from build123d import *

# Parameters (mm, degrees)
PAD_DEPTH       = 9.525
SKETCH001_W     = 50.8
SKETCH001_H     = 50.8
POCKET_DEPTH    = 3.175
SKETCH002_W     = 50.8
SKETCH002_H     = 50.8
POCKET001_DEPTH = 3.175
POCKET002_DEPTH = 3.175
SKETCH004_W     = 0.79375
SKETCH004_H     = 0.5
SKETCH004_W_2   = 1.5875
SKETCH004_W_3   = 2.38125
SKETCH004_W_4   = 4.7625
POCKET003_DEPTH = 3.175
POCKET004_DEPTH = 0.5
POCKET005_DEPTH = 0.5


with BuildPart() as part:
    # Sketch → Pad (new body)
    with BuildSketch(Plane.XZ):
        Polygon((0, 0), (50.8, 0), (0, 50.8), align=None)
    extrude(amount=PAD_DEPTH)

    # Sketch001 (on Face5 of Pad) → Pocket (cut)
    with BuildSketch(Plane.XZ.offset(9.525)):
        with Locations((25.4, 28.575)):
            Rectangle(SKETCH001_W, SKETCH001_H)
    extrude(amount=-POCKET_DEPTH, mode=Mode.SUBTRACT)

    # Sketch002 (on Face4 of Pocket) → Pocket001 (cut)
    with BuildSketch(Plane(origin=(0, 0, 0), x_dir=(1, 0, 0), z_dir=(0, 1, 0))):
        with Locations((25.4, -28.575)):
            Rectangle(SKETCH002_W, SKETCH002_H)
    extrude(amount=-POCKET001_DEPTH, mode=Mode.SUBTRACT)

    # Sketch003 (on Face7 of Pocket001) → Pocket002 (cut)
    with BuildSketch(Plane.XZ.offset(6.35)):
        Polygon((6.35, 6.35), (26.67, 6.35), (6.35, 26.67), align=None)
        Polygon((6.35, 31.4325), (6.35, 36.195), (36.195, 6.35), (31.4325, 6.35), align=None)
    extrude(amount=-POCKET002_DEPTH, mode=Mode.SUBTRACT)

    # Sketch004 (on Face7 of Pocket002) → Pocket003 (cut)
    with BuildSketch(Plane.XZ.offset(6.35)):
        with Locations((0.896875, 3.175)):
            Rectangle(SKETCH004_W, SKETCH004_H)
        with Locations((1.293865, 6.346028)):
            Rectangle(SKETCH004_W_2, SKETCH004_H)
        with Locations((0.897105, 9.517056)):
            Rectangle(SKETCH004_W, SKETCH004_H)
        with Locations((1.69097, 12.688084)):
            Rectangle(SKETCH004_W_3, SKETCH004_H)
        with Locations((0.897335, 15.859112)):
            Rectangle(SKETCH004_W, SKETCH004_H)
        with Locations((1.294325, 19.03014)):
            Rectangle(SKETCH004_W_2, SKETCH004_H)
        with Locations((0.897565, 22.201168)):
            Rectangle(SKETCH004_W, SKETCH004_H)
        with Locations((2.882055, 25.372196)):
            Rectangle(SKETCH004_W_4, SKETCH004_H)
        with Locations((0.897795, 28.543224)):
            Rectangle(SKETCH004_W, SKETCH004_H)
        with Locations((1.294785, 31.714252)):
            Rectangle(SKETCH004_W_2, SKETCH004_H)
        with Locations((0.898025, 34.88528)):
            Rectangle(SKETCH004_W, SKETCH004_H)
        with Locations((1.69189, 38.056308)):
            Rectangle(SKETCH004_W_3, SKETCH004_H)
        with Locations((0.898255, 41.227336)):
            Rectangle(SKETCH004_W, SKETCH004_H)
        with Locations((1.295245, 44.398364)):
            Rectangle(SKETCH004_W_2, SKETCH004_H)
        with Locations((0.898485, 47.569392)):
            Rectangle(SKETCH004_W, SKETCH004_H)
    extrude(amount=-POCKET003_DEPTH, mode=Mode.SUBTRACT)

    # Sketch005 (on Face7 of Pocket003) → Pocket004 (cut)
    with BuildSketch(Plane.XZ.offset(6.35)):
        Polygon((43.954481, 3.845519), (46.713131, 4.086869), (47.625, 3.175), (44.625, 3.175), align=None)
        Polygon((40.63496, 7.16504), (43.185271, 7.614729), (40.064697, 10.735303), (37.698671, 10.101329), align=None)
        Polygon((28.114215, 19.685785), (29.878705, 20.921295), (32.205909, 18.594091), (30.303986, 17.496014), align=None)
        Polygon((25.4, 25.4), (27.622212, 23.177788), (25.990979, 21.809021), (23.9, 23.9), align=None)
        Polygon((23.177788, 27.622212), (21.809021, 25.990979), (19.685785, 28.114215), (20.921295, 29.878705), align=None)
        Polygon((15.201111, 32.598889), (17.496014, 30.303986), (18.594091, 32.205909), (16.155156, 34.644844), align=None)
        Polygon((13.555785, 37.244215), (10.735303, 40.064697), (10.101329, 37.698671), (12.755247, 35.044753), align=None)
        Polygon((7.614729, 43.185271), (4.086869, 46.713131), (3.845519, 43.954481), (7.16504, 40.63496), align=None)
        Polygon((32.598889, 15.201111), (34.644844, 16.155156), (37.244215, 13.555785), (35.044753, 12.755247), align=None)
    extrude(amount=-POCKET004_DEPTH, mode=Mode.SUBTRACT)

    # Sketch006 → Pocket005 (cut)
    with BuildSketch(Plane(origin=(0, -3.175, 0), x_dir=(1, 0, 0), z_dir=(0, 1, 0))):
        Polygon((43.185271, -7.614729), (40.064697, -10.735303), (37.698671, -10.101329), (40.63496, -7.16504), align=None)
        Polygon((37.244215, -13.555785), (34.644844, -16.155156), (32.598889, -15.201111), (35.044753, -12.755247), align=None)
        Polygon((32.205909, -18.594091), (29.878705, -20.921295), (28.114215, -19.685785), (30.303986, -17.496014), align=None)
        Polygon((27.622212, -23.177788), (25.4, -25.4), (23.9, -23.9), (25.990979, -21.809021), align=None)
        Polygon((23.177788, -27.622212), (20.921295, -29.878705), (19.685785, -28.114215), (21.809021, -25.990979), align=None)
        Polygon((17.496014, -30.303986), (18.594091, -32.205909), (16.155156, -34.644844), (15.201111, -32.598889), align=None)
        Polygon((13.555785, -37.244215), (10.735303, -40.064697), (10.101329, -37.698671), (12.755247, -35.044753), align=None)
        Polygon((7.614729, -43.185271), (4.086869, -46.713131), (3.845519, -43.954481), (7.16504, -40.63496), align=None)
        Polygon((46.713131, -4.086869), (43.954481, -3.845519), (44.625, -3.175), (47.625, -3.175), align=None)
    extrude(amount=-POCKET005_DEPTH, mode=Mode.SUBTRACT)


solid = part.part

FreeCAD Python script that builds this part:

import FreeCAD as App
import Part
import Sketcher

V = App.Vector
Q = App.Units.Quantity


def add_polygon(sketch, points):
    """Adds a closed chain of lines whose ends are joined by coincident constraints."""
    first, n = sketch.GeometryCount, len(points)
    for a, b in zip(points, points[1:] + points[:1]):
        sketch.addGeometry(Part.LineSegment(App.Vector(*a, 0), App.Vector(*b, 0)), False)
    for i in range(n):
        sketch.addConstraint(Sketcher.Constraint("Coincident", first + i, 2, first + (i + 1) % n, 1))

doc = App.newDocument("Part")
params = doc.addObject("Spreadsheet::Sheet", "Params")
for row, (alias, value) in enumerate([
    ("sketch1_width", "2 in"),
    ("pad1_length", "0.375 in"),
    ("sketch2_width", "2 in"),
    ("pocket1_length", "0.125 in"),
    ("sketch3_width", "2 in"),
    ("pocket2_length", "0.125 in"),
    ("sketch4_width", "0.8 in"),
    ("sketch4_width2", "0.1875 in"),
    ("pocket3_length", "0.125 in"),
    ("sketch5_width", "0.03125 in"),
    ("sketch5_width2", "0.0625 in"),
    ("sketch5_width3", "0.09375 in"),
    ("sketch5_width4", "0.1875 in"),
    ("pocket4_length", "0.125 in"),
    ("pocket5_length", "0.5 mm"),
    ("pocket6_length", "0.5 mm"),
], start=1):
    params.set(f"A{row}", alias)
    params.set(f"B{row}", "=" + value)
    params.setAlias(f"B{row}", alias)

body = doc.addObject("PartDesign::Body", "Body")

# Sketch on XZ plane
sketch1 = body.newObject("Sketcher::SketchObject", "Sketch")
sketch1.AttachmentSupport = (doc.getObject("XZ_Plane"), [""])
sketch1.MapMode = "FlatFace"
add_polygon(sketch1, [(0, 0), (51, 0), (0, 51)])  # lines 0-2
sketch1.addConstraint(Sketcher.Constraint("Horizontal", 0))
sketch1.addConstraint(Sketcher.Constraint("Vertical", 2))
sketch1.addConstraint(Sketcher.Constraint("Coincident", 2, 2, -1, 1))
sketch1.addConstraint(Sketcher.Constraint("Equal", 0, 2))
sketch1.addConstraint(Sketcher.Constraint("DistanceX", 0, 1, 0, 2, Q("2 in")))
sketch1.setExpression("Constraints[7]", "Params.sketch1_width")
pad1 = body.newObject("PartDesign::Pad", "Pad")
pad1.Profile = sketch1
pad1.setExpression("Length", "Params.pad1_length")

# Sketch on XZ plane
sketch2 = body.newObject("Sketcher::SketchObject", "Sketch001")
sketch2.AttachmentSupport = (doc.getObject("XZ_Plane"), [""])
sketch2.MapMode = "FlatFace"
sketch2.AttachmentOffset = App.Placement(V(0, 0, 0.375 * 25.4), App.Rotation())
add_polygon(sketch2, [(0, 54), (0, 3), (51, 3), (51, 54)])  # lines 0-3
sketch2.addConstraint(Sketcher.Constraint("Vertical", 0))
sketch2.addConstraint(Sketcher.Constraint("Horizontal", 1))
sketch2.addConstraint(Sketcher.Constraint("Vertical", 2))
sketch2.addConstraint(Sketcher.Constraint("Horizontal", 3))
sketch2.addConstraint(Sketcher.Constraint("PointOnObject", 0, 2, -2))
sketch2.addConstraint(Sketcher.Constraint("Equal", 3, 0))
sketch2.addConstraint(Sketcher.Constraint("DistanceX", 1, 1, 1, 2, Q("2 in")))
sketch2.addConstraint(Sketcher.Constraint("DistanceY", -1, 1, 0, 2, Q("0.125 in")))
sketch2.setExpression("Constraints[10]", "Params.sketch2_width")
pocket1 = body.newObject("PartDesign::Pocket", "Pocket")
pocket1.Profile = sketch2
pocket1.setExpression("Length", "Params.pocket1_length")

# Sketch on XZ plane
sketch3 = body.newObject("Sketcher::SketchObject", "Sketch002")
sketch3.AttachmentSupport = (doc.getObject("XZ_Plane"), [""])
sketch3.MapMode = "FlatFace"
add_polygon(sketch3, [(0, 3), (0, 54), (51, 54), (51, 3)])  # lines 0-3
sketch3.addConstraint(Sketcher.Constraint("Vertical", 0))
sketch3.addConstraint(Sketcher.Constraint("Horizontal", 1))
sketch3.addConstraint(Sketcher.Constraint("Vertical", 2))
sketch3.addConstraint(Sketcher.Constraint("Horizontal", 3))
sketch3.addConstraint(Sketcher.Constraint("PointOnObject", 0, 2, -2))
sketch3.addConstraint(Sketcher.Constraint("Equal", 3, 0))
sketch3.addConstraint(Sketcher.Constraint("DistanceX", 1, 1, 1, 2, Q("2 in")))
sketch3.addConstraint(Sketcher.Constraint("DistanceY", -1, 1, 0, 2, Q("2.125 in")))
sketch3.setExpression("Constraints[10]", "Params.sketch3_width")
pocket2 = body.newObject("PartDesign::Pocket", "Pocket001")
pocket2.Profile = sketch3
pocket2.setExpression("Length", "Params.pocket2_length")
pocket2.Reversed = True

# Sketch on XZ plane
sketch4 = body.newObject("Sketcher::SketchObject", "Sketch003")
sketch4.AttachmentSupport = (doc.getObject("XZ_Plane"), [""])
sketch4.MapMode = "FlatFace"
sketch4.AttachmentOffset = App.Placement(V(0, 0, 0.25 * 25.4), App.Rotation())
add_polygon(sketch4, [(6.3, 6.3), (26.7, 6.3), (6.3, 26.7)])  # lines 0-2
add_polygon(sketch4, [(6.3, 36.2), (6.3, 31.4), (31.4, 6.3), (36.2, 6.3)])  # lines 3-6
sketch4.addConstraint(Sketcher.Constraint("Horizontal", 0))
sketch4.addConstraint(Sketcher.Constraint("Vertical", 2))
sketch4.addConstraint(Sketcher.Constraint("Vertical", 3))
sketch4.addConstraint(Sketcher.Constraint("Horizontal", 5))
sketch4.addConstraint(Sketcher.Constraint("Parallel", 1, 4))
sketch4.addConstraint(Sketcher.Constraint("Parallel", 4, 6))
sketch4.addConstraint(Sketcher.Constraint("Horizontal", 2, 2, 4, 2))
sketch4.addConstraint(Sketcher.Constraint("Vertical", 2, 2, 3, 2))
sketch4.addConstraint(Sketcher.Constraint("Equal", 0, 2))
sketch4.addConstraint(Sketcher.Constraint("DistanceX", 0, 1, 0, 2, Q("0.8 in")))
sketch4.addConstraint(Sketcher.Constraint("DistanceX", 5, 1, 5, 2, Q("0.1875 in")))
sketch4.addConstraint(Sketcher.Constraint("DistanceX", -1, 1, 0, 2, Q("1.05 in")))
sketch4.addConstraint(Sketcher.Constraint("DistanceY", -1, 1, 0, 2, Q("0.25 in")))
sketch4.addConstraint(Sketcher.Constraint("DistanceX", -1, 1, 5, 2, Q("1.425 in")))
sketch4.setExpression("Constraints[16]", "Params.sketch4_width")
sketch4.setExpression("Constraints[17]", "Params.sketch4_width2")
pocket3 = body.newObject("PartDesign::Pocket", "Pocket002")
pocket3.Profile = sketch4
pocket3.setExpression("Length", "Params.pocket3_length")

# Sketch on XZ plane
sketch5 = body.newObject("Sketcher::SketchObject", "Sketch004")
sketch5.AttachmentSupport = (doc.getObject("XZ_Plane"), [""])
sketch5.MapMode = "FlatFace"
sketch5.AttachmentOffset = App.Placement(V(0, 0, 0.25 * 25.4), App.Rotation())
add_polygon(sketch5, [(0.5, 3.4), (0.5, 2.9), (1.3, 2.9), (1.3, 3.4)])  # lines 0-3
add_polygon(sketch5, [(0.5, 6.6), (0.5, 6.1), (2.1, 6.1), (2.1, 6.6)])  # lines 4-7
add_polygon(sketch5, [(0.5, 9.8), (0.5, 9.3), (1.3, 9.3), (1.3, 9.8)])  # lines 8-11
add_polygon(sketch5, [(0.5, 12.9), (0.5, 12.4), (2.9, 12.4), (2.9, 12.9)])  # lines 12-15
add_polygon(sketch5, [(0.5, 16.1), (0.5, 15.6), (1.3, 15.6), (1.3, 16.1)])  # lines 16-19
add_polygon(sketch5, [(0.5, 19.3), (0.5, 18.8), (2.1, 18.8), (2.1, 19.3)])  # lines 20-23
add_polygon(sketch5, [(0.5, 22.5), (0.5, 22), (1.3, 22), (1.3, 22.5)])  # lines 24-27
add_polygon(sketch5, [(0.5, 25.6), (0.5, 25.1), (5.3, 25.1), (5.3, 25.6)])  # lines 28-31
add_polygon(sketch5, [(0.5, 28.8), (0.5, 28.3), (1.3, 28.3), (1.3, 28.8)])  # lines 32-35
add_polygon(sketch5, [(0.5, 32), (0.5, 31.5), (2.1, 31.5), (2.1, 32)])  # lines 36-39
add_polygon(sketch5, [(0.5, 35.1), (0.5, 34.6), (1.3, 34.6), (1.3, 35.1)])  # lines 40-43
add_polygon(sketch5, [(0.5, 38.3), (0.5, 37.8), (2.9, 37.8), (2.9, 38.3)])  # lines 44-47
add_polygon(sketch5, [(0.5, 41.5), (0.5, 41), (1.3, 41), (1.3, 41.5)])  # lines 48-51
add_polygon(sketch5, [(0.5, 44.6), (0.5, 44.1), (2.1, 44.1), (2.1, 44.6)])  # lines 52-55
add_polygon(sketch5, [(0.5, 47.8), (0.5, 47.3), (1.3, 47.3), (1.3, 47.8)])  # lines 56-59
sketch5.addConstraint(Sketcher.Constraint("Vertical", 0))
sketch5.addConstraint(Sketcher.Constraint("Horizontal", 1))
sketch5.addConstraint(Sketcher.Constraint("Vertical", 2))
sketch5.addConstraint(Sketcher.Constraint("Horizontal", 3))
sketch5.addConstraint(Sketcher.Constraint("Vertical", 4))
sketch5.addConstraint(Sketcher.Constraint("Horizontal", 5))
sketch5.addConstraint(Sketcher.Constraint("Vertical", 6))
sketch5.addConstraint(Sketcher.Constraint("Horizontal", 7))
sketch5.addConstraint(Sketcher.Constraint("Vertical", 8))
sketch5.addConstraint(Sketcher.Constraint("Horizontal", 9))
sketch5.addConstraint(Sketcher.Constraint("Vertical", 10))
sketch5.addConstraint(Sketcher.Constraint("Horizontal", 11))
sketch5.addConstraint(Sketcher.Constraint("Vertical", 12))
sketch5.addConstraint(Sketcher.Constraint("Horizontal", 13))
sketch5.addConstraint(Sketcher.Constraint("Vertical", 14))
sketch5.addConstraint(Sketcher.Constraint("Horizontal", 15))
sketch5.addConstraint(Sketcher.Constraint("Vertical", 16))
sketch5.addConstraint(Sketcher.Constraint("Horizontal", 17))
sketch5.addConstraint(Sketcher.Constraint("Vertical", 18))
sketch5.addConstraint(Sketcher.Constraint("Horizontal", 19))
sketch5.addConstraint(Sketcher.Constraint("Vertical", 20))
sketch5.addConstraint(Sketcher.Constraint("Horizontal", 21))
sketch5.addConstraint(Sketcher.Constraint("Vertical", 22))
sketch5.addConstraint(Sketcher.Constraint("Horizontal", 23))
sketch5.addConstraint(Sketcher.Constraint("Vertical", 24))
sketch5.addConstraint(Sketcher.Constraint("Horizontal", 25))
sketch5.addConstraint(Sketcher.Constraint("Vertical", 26))
sketch5.addConstraint(Sketcher.Constraint("Horizontal", 27))
sketch5.addConstraint(Sketcher.Constraint("Vertical", 28))
sketch5.addConstraint(Sketcher.Constraint("Horizontal", 29))
sketch5.addConstraint(Sketcher.Constraint("Vertical", 30))
sketch5.addConstraint(Sketcher.Constraint("Horizontal", 31))
sketch5.addConstraint(Sketcher.Constraint("Vertical", 32))
sketch5.addConstraint(Sketcher.Constraint("Horizontal", 33))
sketch5.addConstraint(Sketcher.Constraint("Vertical", 34))
sketch5.addConstraint(Sketcher.Constraint("Horizontal", 35))
sketch5.addConstraint(Sketcher.Constraint("Vertical", 36))
sketch5.addConstraint(Sketcher.Constraint("Horizontal", 37))
sketch5.addConstraint(Sketcher.Constraint("Vertical", 38))
sketch5.addConstraint(Sketcher.Constraint("Horizontal", 39))
sketch5.addConstraint(Sketcher.Constraint("Vertical", 40))
sketch5.addConstraint(Sketcher.Constraint("Horizontal", 41))
sketch5.addConstraint(Sketcher.Constraint("Vertical", 42))
sketch5.addConstraint(Sketcher.Constraint("Horizontal", 43))
sketch5.addConstraint(Sketcher.Constraint("Vertical", 44))
sketch5.addConstraint(Sketcher.Constraint("Horizontal", 45))
sketch5.addConstraint(Sketcher.Constraint("Vertical", 46))
sketch5.addConstraint(Sketcher.Constraint("Horizontal", 47))
sketch5.addConstraint(Sketcher.Constraint("Vertical", 48))
sketch5.addConstraint(Sketcher.Constraint("Horizontal", 49))
sketch5.addConstraint(Sketcher.Constraint("Vertical", 50))
sketch5.addConstraint(Sketcher.Constraint("Horizontal", 51))
sketch5.addConstraint(Sketcher.Constraint("Vertical", 52))
sketch5.addConstraint(Sketcher.Constraint("Horizontal", 53))
sketch5.addConstraint(Sketcher.Constraint("Vertical", 54))
sketch5.addConstraint(Sketcher.Constraint("Horizontal", 55))
sketch5.addConstraint(Sketcher.Constraint("Vertical", 56))
sketch5.addConstraint(Sketcher.Constraint("Horizontal", 57))
sketch5.addConstraint(Sketcher.Constraint("Vertical", 58))
sketch5.addConstraint(Sketcher.Constraint("Horizontal", 59))
sketch5.addConstraint(Sketcher.Constraint("Equal", 3, 9))
sketch5.addConstraint(Sketcher.Constraint("Equal", 11, 17))
sketch5.addConstraint(Sketcher.Constraint("Equal", 7, 21))
sketch5.addConstraint(Sketcher.Constraint("Equal", 19, 25))
sketch5.addConstraint(Sketcher.Constraint("Equal", 27, 33))
sketch5.addConstraint(Sketcher.Constraint("Equal", 23, 37))
sketch5.addConstraint(Sketcher.Constraint("Equal", 35, 41))
sketch5.addConstraint(Sketcher.Constraint("Equal", 15, 45))
sketch5.addConstraint(Sketcher.Constraint("Equal", 43, 49))
sketch5.addConstraint(Sketcher.Constraint("Equal", 39, 53))
sketch5.addConstraint(Sketcher.Constraint("Equal", 51, 57))
sketch5.addConstraint(Sketcher.Constraint("Equal", 2, 4))
sketch5.addConstraint(Sketcher.Constraint("Equal", 6, 8))
sketch5.addConstraint(Sketcher.Constraint("Equal", 10, 12))
sketch5.addConstraint(Sketcher.Constraint("Equal", 14, 16))
sketch5.addConstraint(Sketcher.Constraint("Equal", 18, 20))
sketch5.addConstraint(Sketcher.Constraint("Equal", 22, 24))
sketch5.addConstraint(Sketcher.Constraint("Equal", 26, 28))
sketch5.addConstraint(Sketcher.Constraint("Equal", 30, 32))
sketch5.addConstraint(Sketcher.Constraint("Equal", 34, 36))
sketch5.addConstraint(Sketcher.Constraint("Equal", 38, 40))
sketch5.addConstraint(Sketcher.Constraint("Equal", 42, 44))
sketch5.addConstraint(Sketcher.Constraint("Equal", 46, 48))
sketch5.addConstraint(Sketcher.Constraint("Equal", 50, 52))
sketch5.addConstraint(Sketcher.Constraint("Equal", 54, 56))
sketch5.addConstraint(Sketcher.Constraint("DistanceX", 1, 1, 1, 2, Q("0.03125 in")))
sketch5.addConstraint(Sketcher.Constraint("DistanceX", 5, 1, 5, 2, Q("0.0625 in")))
sketch5.addConstraint(Sketcher.Constraint("DistanceX", 13, 1, 13, 2, Q("0.09375 in")))
sketch5.addConstraint(Sketcher.Constraint("DistanceX", 29, 1, 29, 2, Q("0.1875 in")))
sketch5.addConstraint(Sketcher.Constraint("DistanceY", 0, 2, 0, 1, 0.5))
sketch5.addConstraint(Sketcher.Constraint("DistanceX", -1, 1, 0, 2, 0.5))
sketch5.addConstraint(Sketcher.Constraint("DistanceY", -1, 1, 0, 2, 2.925))
sketch5.addConstraint(Sketcher.Constraint("DistanceX", -1, 1, 41, 2, 1.2949))
sketch5.addConstraint(Sketcher.Constraint("DistanceX", -1, 1, 8, 2, 0.50023))
sketch5.addConstraint(Sketcher.Constraint("DistanceX", -1, 1, 16, 2, 0.50046))
sketch5.addConstraint(Sketcher.Constraint("DistanceY", -1, 1, 18, 2, 16.109112))
sketch5.addConstraint(Sketcher.Constraint("DistanceY", -1, 1, 20, 2, 18.78014))
sketch5.addConstraint(Sketcher.Constraint("DistanceX", -1, 1, 24, 2, 0.50069))
sketch5.addConstraint(Sketcher.Constraint("DistanceX", -1, 1, 32, 2, 0.50092))
sketch5.addConstraint(Sketcher.Constraint("DistanceY", -1, 1, 36, 2, 31.464252))
sketch5.addConstraint(Sketcher.Constraint("DistanceY", -1, 1, 40, 2, 34.63528))
sketch5.addConstraint(Sketcher.Constraint("DistanceX", -1, 1, 48, 2, 0.50138))
sketch5.addConstraint(Sketcher.Constraint("DistanceX", -1, 1, 56, 2, 0.50161))
sketch5.addConstraint(Sketcher.Constraint("DistanceY", 7, 2, 8, 2, 2.671028))
sketch5.addConstraint(Sketcher.Constraint("DistanceX", 7, 2, 12, 2, 0.00023))
sketch5.addConstraint(Sketcher.Constraint("DistanceX", 15, 2, 20, 2, 0.00023))
sketch5.addConstraint(Sketcher.Constraint("DistanceX", 23, 2, 28, 2, 0.00023))
sketch5.addConstraint(Sketcher.Constraint("DistanceX", 31, 2, 36, 2, 0.00023))
sketch5.addConstraint(Sketcher.Constraint("DistanceX", 39, 2, 44, 2, 0.00023))
sketch5.addConstraint(Sketcher.Constraint("DistanceX", 47, 2, 52, 2, 0.00023))
sketch5.addConstraint(Sketcher.Constraint("DistanceX", -1, 1, 4, 2, 0.500115))
sketch5.addConstraint(Sketcher.Constraint("DistanceY", -1, 1, 4, 2, 6.096028))
sketch5.addConstraint(Sketcher.Constraint("DistanceY", -1, 1, 12, 2, 12.438084))
sketch5.addConstraint(Sketcher.Constraint("DistanceY", -1, 1, 24, 2, 21.951168))
sketch5.addConstraint(Sketcher.Constraint("DistanceY", -1, 1, 28, 2, 25.122196))
sketch5.addConstraint(Sketcher.Constraint("DistanceY", -1, 1, 32, 2, 28.293224))
sketch5.addConstraint(Sketcher.Constraint("DistanceY", -1, 1, 44, 2, 37.806308))
sketch5.addConstraint(Sketcher.Constraint("DistanceY", -1, 1, 48, 2, 40.977336))
sketch5.addConstraint(Sketcher.Constraint("DistanceY", -1, 1, 52, 2, 44.148364))
sketch5.addConstraint(Sketcher.Constraint("DistanceY", -1, 1, 56, 2, 47.319392))
sketch5.setExpression("Constraints[145]", "Params.sketch5_width")
sketch5.setExpression("Constraints[146]", "Params.sketch5_width2")
sketch5.setExpression("Constraints[147]", "Params.sketch5_width3")
sketch5.setExpression("Constraints[148]", "Params.sketch5_width4")
pocket4 = body.newObject("PartDesign::Pocket", "Pocket003")
pocket4.Profile = sketch5
pocket4.setExpression("Length", "Params.pocket4_length")

# Sketch on XZ plane
sketch6 = body.newObject("Sketcher::SketchObject", "Sketch005")
sketch6.AttachmentSupport = (doc.getObject("XZ_Plane"), [""])
sketch6.MapMode = "FlatFace"
sketch6.AttachmentOffset = App.Placement(V(0, 0, 0.25 * 25.4), App.Rotation())
add_polygon(sketch6, [(46.7, 4.1), (44, 3.8), (44.6, 3.2), (47.6, 3.2)])  # lines 0-3
add_polygon(sketch6, [(40.6, 7.2), (43.2, 7.6), (40.1, 10.7), (37.7, 10.1)])  # lines 4-7
add_polygon(sketch6, [(29.9, 20.9), (28.1, 19.7), (30.3, 17.5), (32.2, 18.6)])  # lines 8-11
add_polygon(sketch6, [(27.6, 23.2), (25.4, 25.4), (23.9, 23.9), (26, 21.8)])  # lines 12-15
add_polygon(sketch6, [(21.8, 26), (23.2, 27.6), (20.9, 29.9), (19.7, 28.1)])  # lines 16-19
add_polygon(sketch6, [(15.2, 32.6), (17.5, 30.3), (18.6, 32.2), (16.2, 34.6)])  # lines 20-23
add_polygon(sketch6, [(13.6, 37.2), (10.7, 40.1), (10.1, 37.7), (12.8, 35)])  # lines 24-27
add_polygon(sketch6, [(7.6, 43.2), (4.1, 46.7), (3.8, 44), (7.2, 40.6)])  # lines 28-31
add_polygon(sketch6, [(34.6, 16.2), (32.6, 15.2), (35, 12.8), (37.2, 13.6)])  # lines 32-35
sketch6.addConstraint(Sketcher.Constraint("Horizontal", 2))
sketch6.addConstraint(Sketcher.Constraint("Parallel", 1, 3))
sketch6.addConstraint(Sketcher.Constraint("Parallel", 3, 5))
sketch6.addConstraint(Sketcher.Constraint("Parallel", 5, 7))
sketch6.addConstraint(Sketcher.Constraint("Parallel", 7, 9))
sketch6.addConstraint(Sketcher.Constraint("Parallel", 9, 11))
sketch6.addConstraint(Sketcher.Constraint("Parallel", 11, 12))
sketch6.addConstraint(Sketcher.Constraint("Perpendicular", 12, 13))
sketch6.addConstraint(Sketcher.Constraint("Perpendicular", 13, 14))
sketch6.addConstraint(Sketcher.Constraint("Parallel", 14, 17))
sketch6.addConstraint(Sketcher.Constraint("Parallel", 17, 19))
sketch6.addConstraint(Sketcher.Constraint("Parallel", 19, 20))
sketch6.addConstraint(Sketcher.Constraint("Parallel", 20, 22))
sketch6.addConstraint(Sketcher.Constraint("Parallel", 22, 24))
sketch6.addConstraint(Sketcher.Constraint("Parallel", 24, 26))
sketch6.addConstraint(Sketcher.Constraint("Parallel", 26, 28))
sketch6.addConstraint(Sketcher.Constraint("Parallel", 28, 30))
sketch6.addConstraint(Sketcher.Constraint("Parallel", 30, 33))
sketch6.addConstraint(Sketcher.Constraint("Parallel", 33, 35))
sketch6.addConstraint(Sketcher.Constraint("Equal", 15, 16))
sketch6.addConstraint(Sketcher.Constraint("Equal", 8, 18))
sketch6.addConstraint(Sketcher.Constraint("Equal", 10, 21))
sketch6.addConstraint(Sketcher.Constraint("Equal", 6, 25))
sketch6.addConstraint(Sketcher.Constraint("Equal", 0, 29))
sketch6.addConstraint(Sketcher.Constraint("Equal", 4, 31))
sketch6.addConstraint(Sketcher.Constraint("Equal", 23, 32))
sketch6.addConstraint(Sketcher.Constraint("Equal", 27, 34))
sketch6.addConstraint(Sketcher.Constraint("DistanceX", -1, 1, 12, 2, Q("1 in")))
sketch6.addConstraint(Sketcher.Constraint("DistanceY", -1, 1, 12, 2, Q("1 in")))
sketch6.addConstraint(Sketcher.Constraint("Angle", 0, Q("-175.000012 deg")))
sketch6.addConstraint(Sketcher.Constraint("Angle", 1, Q("-45 deg")))
sketch6.addConstraint(Sketcher.Constraint("Angle", 4, Q("10.000008 deg")))
sketch6.addConstraint(Sketcher.Constraint("Angle", 6, Q("-165.000017 deg")))
sketch6.addConstraint(Sketcher.Constraint("Angle", 8, Q("-144.999983 deg")))
sketch6.addConstraint(Sketcher.Constraint("Angle", 15, Q("40 deg")))
sketch6.addConstraint(Sketcher.Constraint("Angle", 16, Q("50 deg")))
sketch6.addConstraint(Sketcher.Constraint("Angle", 18, Q("-125.000017 deg")))
sketch6.addConstraint(Sketcher.Constraint("Angle", 23, Q("-115.000012 deg")))
sketch6.addConstraint(Sketcher.Constraint("Angle", 25, Q("-104.999983 deg")))
sketch6.addConstraint(Sketcher.Constraint("Angle", 27, Q("70.000016 deg")))
sketch6.addConstraint(Sketcher.Constraint("Angle", 29, Q("-94.999988 deg")))
sketch6.addConstraint(Sketcher.Constraint("Angle", 31, Q("79.999992 deg")))
sketch6.addConstraint(Sketcher.Constraint("Angle", 32, Q("-154.999988 deg")))
sketch6.addConstraint(Sketcher.Constraint("Angle", 34, Q("19.999984 deg")))
sketch6.addConstraint(Sketcher.Constraint("DistanceY", -1, 1, 1, 2, Q("0.125 in")))
sketch6.addConstraint(Sketcher.Constraint("DistanceX", -1, 1, 2, 2, Q("1.875 in")))
sketch6.addConstraint(Sketcher.Constraint("DistanceX", 2, 1, 2, 2, 3.0))
sketch6.addConstraint(Sketcher.Constraint("DistanceX", 6, 2, 3, 2, Q("0.3549 in")))
sketch6.addConstraint(Sketcher.Constraint("DistanceY", 20, 2, 22, 2, Q("0.1708999 in")))
sketch6.addConstraint(Sketcher.Constraint("DistanceY", 25, 2, 28, 2, Q("0.3549 in")))
sketch6.addConstraint(Sketcher.Constraint("DistanceX", 9, 2, 35, 2, Q("0.1708999 in")))
sketch6.addConstraint(Sketcher.Constraint("DistanceX", -1, 1, 13, 2, 23.9))
sketch6.addConstraint(Sketcher.Constraint("DistanceX", 6, 2, 4, 2, 5.4866))
sketch6.addConstraint(Sketcher.Constraint("DistanceX", 31, 2, 25, 2, 2.4866))
sketch6.addConstraint(Sketcher.Constraint("DistanceY", 25, 2, 31, 2, 5.4866))
sketch6.addConstraint(Sketcher.Constraint("Distance", 14, 2.957091))
sketch6.addConstraint(Sketcher.Constraint("Distance", 19, 3.002709))
sketch6.addConstraint(Sketcher.Constraint("DistanceX", -1, 1, 0, 2, 43.954481))
sketch6.addConstraint(Sketcher.Constraint("DistanceY", -1, 1, 4, 2, 7.614729))
sketch6.addConstraint(Sketcher.Constraint("DistanceX", -1, 1, 10, 2, 32.205909))
sketch6.addConstraint(Sketcher.Constraint("DistanceY", -1, 1, 10, 2, 18.594091))
sketch6.addConstraint(Sketcher.Constraint("DistanceX", -1, 1, 19, 2, 21.809021))
sketch6.addConstraint(Sketcher.Constraint("DistanceY", -1, 1, 19, 2, 25.990979))
sketch6.addConstraint(Sketcher.Constraint("DistanceX", -1, 1, 21, 2, 18.594091))
sketch6.addConstraint(Sketcher.Constraint("DistanceY", -1, 1, 21, 2, 32.205909))
sketch6.addConstraint(Sketcher.Constraint("DistanceX", -1, 1, 23, 2, 15.201111))
sketch6.addConstraint(Sketcher.Constraint("DistanceX", -1, 1, 25, 2, 10.101329))
sketch6.addConstraint(Sketcher.Constraint("DistanceY", -1, 1, 25, 2, 37.698671))
sketch6.addConstraint(Sketcher.Constraint("DistanceY", -1, 1, 32, 2, 15.201111))
sketch6.addConstraint(Sketcher.Constraint("DistanceY", 5, 2, 8, 2, 8.950482))
sketch6.addConstraint(Sketcher.Constraint("DistanceX", 26, 2, 22, 2, 3.399909))
sketch6.addConstraint(Sketcher.Constraint("DistanceY", 6, 2, 33, 2, 2.653918))
pocket5 = body.newObject("PartDesign::Pocket", "Pocket004")
pocket5.Profile = sketch6
pocket5.setExpression("Length", "Params.pocket5_length")

# Sketch on XZ plane
sketch7 = body.newObject("Sketcher::SketchObject", "Sketch006")
sketch7.AttachmentSupport = (doc.getObject("XZ_Plane"), [""])
sketch7.MapMode = "FlatFace"
sketch7.AttachmentOffset = App.Placement(V(0, 0, 0.125 * 25.4), App.Rotation())
add_polygon(sketch7, [(40.1, 10.7), (43.2, 7.6), (40.6, 7.2), (37.7, 10.1)])  # lines 0-3
add_polygon(sketch7, [(34.6, 16.2), (37.2, 13.6), (35, 12.8), (32.6, 15.2)])  # lines 4-7
add_polygon(sketch7, [(29.9, 20.9), (32.2, 18.6), (30.3, 17.5), (28.1, 19.7)])  # lines 8-11
add_polygon(sketch7, [(25.4, 25.4), (27.6, 23.2), (26, 21.8), (23.9, 23.9)])  # lines 12-15
add_polygon(sketch7, [(20.9, 29.9), (23.2, 27.6), (21.8, 26), (19.7, 28.1)])  # lines 16-19
add_polygon(sketch7, [(18.6, 32.2), (17.5, 30.3), (15.2, 32.6), (16.2, 34.6)])  # lines 20-23
add_polygon(sketch7, [(10.7, 40.1), (13.6, 37.2), (12.8, 35), (10.1, 37.7)])  # lines 24-27
add_polygon(sketch7, [(4.1, 46.7), (7.6, 43.2), (7.2, 40.6), (3.8, 44)])  # lines 28-31
add_polygon(sketch7, [(44, 3.8), (46.7, 4.1), (47.6, 3.2), (44.6, 3.2)])  # lines 32-35
sketch7.addConstraint(Sketcher.Constraint("Horizontal", 34))
sketch7.addConstraint(Sketcher.Constraint("Parallel", 0, 2))
sketch7.addConstraint(Sketcher.Constraint("Parallel", 2, 4))
sketch7.addConstraint(Sketcher.Constraint("Parallel", 4, 6))
sketch7.addConstraint(Sketcher.Constraint("Parallel", 6, 8))
sketch7.addConstraint(Sketcher.Constraint("Parallel", 8, 10))
sketch7.addConstraint(Sketcher.Constraint("Parallel", 10, 12))
sketch7.addConstraint(Sketcher.Constraint("Parallel", 12, 14))
sketch7.addConstraint(Sketcher.Constraint("Perpendicular", 14, 15))
sketch7.addConstraint(Sketcher.Constraint("Perpendicular", 15, 16))
sketch7.addConstraint(Sketcher.Constraint("Parallel", 16, 18))
sketch7.addConstraint(Sketcher.Constraint("Parallel", 18, 21))
sketch7.addConstraint(Sketcher.Constraint("Parallel", 21, 23))
sketch7.addConstraint(Sketcher.Constraint("Parallel", 23, 24))
sketch7.addConstraint(Sketcher.Constraint("Parallel", 24, 26))
sketch7.addConstraint(Sketcher.Constraint("Parallel", 26, 28))
sketch7.addConstraint(Sketcher.Constraint("Parallel", 28, 30))
sketch7.addConstraint(Sketcher.Constraint("Parallel", 30, 33))
sketch7.addConstraint(Sketcher.Constraint("Parallel", 33, 35))
sketch7.addConstraint(Sketcher.Constraint("Equal", 13, 17))
sketch7.addConstraint(Sketcher.Constraint("Equal", 11, 19))
sketch7.addConstraint(Sketcher.Constraint("Equal", 9, 20))
sketch7.addConstraint(Sketcher.Constraint("Equal", 7, 22))
sketch7.addConstraint(Sketcher.Constraint("Equal", 5, 25))
sketch7.addConstraint(Sketcher.Constraint("Equal", 3, 27))
sketch7.addConstraint(Sketcher.Constraint("Equal", 1, 29))
sketch7.addConstraint(Sketcher.Constraint("Equal", 31, 32))
sketch7.addConstraint(Sketcher.Constraint("DistanceX", -1, 1, 15, 2, Q("1 in")))
sketch7.addConstraint(Sketcher.Constraint("DistanceY", -1, 1, 15, 2, Q("1 in")))
sketch7.addConstraint(Sketcher.Constraint("Angle", 0, Q("-45 deg")))
sketch7.addConstraint(Sketcher.Constraint("Angle", 1, Q("-169.999992 deg")))
sketch7.addConstraint(Sketcher.Constraint("Angle", 3, Q("14.999983 deg")))
sketch7.addConstraint(Sketcher.Constraint("Angle", 5, Q("-160.000016 deg")))
sketch7.addConstraint(Sketcher.Constraint("Angle", 7, Q("25.000012 deg")))
sketch7.addConstraint(Sketcher.Constraint("Angle", 11, Q("35.000017 deg")))
sketch7.addConstraint(Sketcher.Constraint("Angle", 13, Q("-140 deg")))
sketch7.addConstraint(Sketcher.Constraint("Angle", 17, Q("-130 deg")))
sketch7.addConstraint(Sketcher.Constraint("Angle", 19, Q("54.999983 deg")))
sketch7.addConstraint(Sketcher.Constraint("Angle", 22, Q("64.999988 deg")))
sketch7.addConstraint(Sketcher.Constraint("Angle", 25, Q("-109.999984 deg")))
sketch7.addConstraint(Sketcher.Constraint("Angle", 27, Q("75.000017 deg")))
sketch7.addConstraint(Sketcher.Constraint("Angle", 29, Q("-100.000008 deg")))
sketch7.addConstraint(Sketcher.Constraint("Angle", 31, Q("85.000012 deg")))
sketch7.addConstraint(Sketcher.Constraint("Angle", 32, Q("4.999988 deg")))
sketch7.addConstraint(Sketcher.Constraint("DistanceX", -1, 1, 33, 2, Q("1.875 in")))
sketch7.addConstraint(Sketcher.Constraint("DistanceY", -1, 1, 33, 2, Q("0.125 in")))
sketch7.addConstraint(Sketcher.Constraint("DistanceX", 34, 2, 34, 1, 3.0))
sketch7.addConstraint(Sketcher.Constraint("DistanceX", 4, 2, 0, 2, Q("0.2338998 in")))
sketch7.addConstraint(Sketcher.Constraint("DistanceY", 0, 2, 4, 2, Q("0.2338998 in")))
sketch7.addConstraint(Sketcher.Constraint("DistanceX", 9, 2, 7, 2, Q("0.1708999 in")))
sketch7.addConstraint(Sketcher.Constraint("DistanceY", 20, 2, 22, 2, Q("0.1708999 in")))
sketch7.addConstraint(Sketcher.Constraint("DistanceX", 28, 2, 24, 2, Q("0.2338998 in")))
sketch7.addConstraint(Sketcher.Constraint("DistanceY", 24, 2, 28, 2, Q("0.2338998 in")))
sketch7.addConstraint(Sketcher.Constraint("DistanceY", 26, 2, 31, 2, Q("0.3549 in")))
sketch7.addConstraint(Sketcher.Constraint("DistanceX", 2, 2, 32, 2, Q("0.3549 in")))
sketch7.addConstraint(Sketcher.Constraint("DistanceX", -1, 1, 14, 2, 23.9))
sketch7.addConstraint(Sketcher.Constraint("DistanceX", 2, 2, 0, 2, 5.4866))
sketch7.addConstraint(Sketcher.Constraint("DistanceX", 28, 2, 26, 2, 2.4866))
sketch7.addConstraint(Sketcher.Constraint("Distance", 14, 2.957091))
sketch7.addConstraint(Sketcher.Constraint("Distance", 18, 3.002709))
sketch7.addConstraint(Sketcher.Constraint("DistanceX", -1, 1, 0, 2, 43.185271))
sketch7.addConstraint(Sketcher.Constraint("DistanceY", -1, 1, 0, 2, 7.614729))
sketch7.addConstraint(Sketcher.Constraint("DistanceX", -1, 1, 6, 2, 32.598889))
sketch7.addConstraint(Sketcher.Constraint("DistanceX", -1, 1, 8, 2, 32.205909))
sketch7.addConstraint(Sketcher.Constraint("DistanceY", -1, 1, 8, 2, 18.594091))
sketch7.addConstraint(Sketcher.Constraint("DistanceX", -1, 1, 17, 2, 21.809021))
sketch7.addConstraint(Sketcher.Constraint("DistanceY", -1, 1, 17, 2, 25.990979))
sketch7.addConstraint(Sketcher.Constraint("DistanceX", -1, 1, 21, 2, 15.201111))
sketch7.addConstraint(Sketcher.Constraint("DistanceY", -1, 1, 21, 2, 32.598889))
sketch7.addConstraint(Sketcher.Constraint("DistanceX", -1, 1, 26, 2, 10.101329))
sketch7.addConstraint(Sketcher.Constraint("DistanceY", -1, 1, 26, 2, 37.698671))
sketch7.addConstraint(Sketcher.Constraint("DistanceX", 10, 2, 9, 2, 2.189771))
pocket6 = body.newObject("PartDesign::Pocket", "Pocket005")
pocket6.Profile = sketch7
pocket6.setExpression("Length", "Params.pocket6_length")
pocket6.Reversed = True

doc.recompute()
